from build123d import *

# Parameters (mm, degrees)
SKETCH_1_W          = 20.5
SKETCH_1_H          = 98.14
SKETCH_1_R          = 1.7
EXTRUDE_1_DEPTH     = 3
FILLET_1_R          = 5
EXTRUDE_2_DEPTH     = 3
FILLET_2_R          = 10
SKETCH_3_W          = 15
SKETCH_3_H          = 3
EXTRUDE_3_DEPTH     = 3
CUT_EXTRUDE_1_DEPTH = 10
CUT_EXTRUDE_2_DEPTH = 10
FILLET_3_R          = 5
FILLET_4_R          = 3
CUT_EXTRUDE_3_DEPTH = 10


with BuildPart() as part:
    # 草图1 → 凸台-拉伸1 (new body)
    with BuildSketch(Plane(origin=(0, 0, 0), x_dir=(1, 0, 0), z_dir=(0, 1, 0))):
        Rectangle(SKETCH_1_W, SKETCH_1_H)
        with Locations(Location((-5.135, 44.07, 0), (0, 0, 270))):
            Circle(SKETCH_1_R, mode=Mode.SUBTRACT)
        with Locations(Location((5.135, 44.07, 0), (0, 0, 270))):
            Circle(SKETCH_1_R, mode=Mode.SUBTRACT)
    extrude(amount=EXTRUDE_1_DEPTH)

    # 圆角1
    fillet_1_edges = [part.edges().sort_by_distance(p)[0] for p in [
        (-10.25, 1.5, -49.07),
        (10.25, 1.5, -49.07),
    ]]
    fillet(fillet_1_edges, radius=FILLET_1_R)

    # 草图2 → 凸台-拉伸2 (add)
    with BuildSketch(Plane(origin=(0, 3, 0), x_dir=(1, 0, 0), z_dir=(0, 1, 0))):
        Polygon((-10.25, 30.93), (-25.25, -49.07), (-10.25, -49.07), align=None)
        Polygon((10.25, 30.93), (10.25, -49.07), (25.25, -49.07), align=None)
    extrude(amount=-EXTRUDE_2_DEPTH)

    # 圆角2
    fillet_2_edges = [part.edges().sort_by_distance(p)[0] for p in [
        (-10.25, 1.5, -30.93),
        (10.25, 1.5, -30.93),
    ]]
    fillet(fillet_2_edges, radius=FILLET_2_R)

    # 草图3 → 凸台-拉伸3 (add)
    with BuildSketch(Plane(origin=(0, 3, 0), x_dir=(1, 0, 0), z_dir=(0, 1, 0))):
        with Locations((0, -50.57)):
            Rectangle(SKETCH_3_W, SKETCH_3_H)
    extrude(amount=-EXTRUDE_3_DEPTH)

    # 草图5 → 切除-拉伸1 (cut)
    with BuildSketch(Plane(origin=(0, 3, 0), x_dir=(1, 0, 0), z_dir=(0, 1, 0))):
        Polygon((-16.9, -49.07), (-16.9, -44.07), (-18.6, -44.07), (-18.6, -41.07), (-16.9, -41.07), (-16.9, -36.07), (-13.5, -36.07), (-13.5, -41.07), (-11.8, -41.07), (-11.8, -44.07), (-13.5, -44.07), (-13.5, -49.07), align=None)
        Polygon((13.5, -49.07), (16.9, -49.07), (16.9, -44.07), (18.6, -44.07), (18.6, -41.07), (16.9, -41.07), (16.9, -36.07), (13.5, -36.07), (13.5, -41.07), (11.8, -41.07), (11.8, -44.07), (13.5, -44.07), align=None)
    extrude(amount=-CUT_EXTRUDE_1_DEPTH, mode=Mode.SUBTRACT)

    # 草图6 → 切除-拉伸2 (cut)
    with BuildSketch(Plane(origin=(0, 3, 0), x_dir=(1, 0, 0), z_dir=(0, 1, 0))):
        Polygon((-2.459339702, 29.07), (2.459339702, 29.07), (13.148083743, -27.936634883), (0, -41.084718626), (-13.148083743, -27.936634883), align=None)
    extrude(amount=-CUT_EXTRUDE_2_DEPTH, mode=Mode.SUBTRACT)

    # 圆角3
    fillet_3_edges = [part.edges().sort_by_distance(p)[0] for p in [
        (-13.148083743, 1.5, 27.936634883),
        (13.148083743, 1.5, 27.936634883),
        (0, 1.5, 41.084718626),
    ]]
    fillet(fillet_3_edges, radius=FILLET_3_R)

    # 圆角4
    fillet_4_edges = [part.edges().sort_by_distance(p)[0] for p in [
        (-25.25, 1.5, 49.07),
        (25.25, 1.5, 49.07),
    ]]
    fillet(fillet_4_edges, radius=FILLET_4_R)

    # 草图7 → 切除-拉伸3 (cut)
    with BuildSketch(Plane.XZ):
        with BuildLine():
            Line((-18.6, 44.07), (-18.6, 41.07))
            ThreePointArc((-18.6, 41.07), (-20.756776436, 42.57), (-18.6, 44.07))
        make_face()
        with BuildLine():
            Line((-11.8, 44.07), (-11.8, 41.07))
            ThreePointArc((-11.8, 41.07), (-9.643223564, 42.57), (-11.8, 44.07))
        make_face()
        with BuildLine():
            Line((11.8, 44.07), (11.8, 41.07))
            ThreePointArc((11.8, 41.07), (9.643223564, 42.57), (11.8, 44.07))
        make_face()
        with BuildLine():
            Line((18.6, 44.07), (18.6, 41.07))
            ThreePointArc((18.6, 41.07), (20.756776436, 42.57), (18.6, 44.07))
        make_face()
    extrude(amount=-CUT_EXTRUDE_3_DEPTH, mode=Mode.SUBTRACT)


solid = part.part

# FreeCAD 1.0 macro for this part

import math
import FreeCAD as App
import Part
import Sketcher
from FreeCAD import Vector
Q = App.Units.Quantity


def edges_at(feature, points):
    """Names of the edges that pass closest to the given points."""
    edges = feature.Shape.Edges
    near = lambda p: min(range(len(edges)), key=lambda i: edges[i].distToShape(Part.Vertex(*p))[0])
    return sorted({f"Edge{near(p) + 1}" for p in points})


def add_polygon(sketch, points):
    """Adds a closed chain of lines whose ends are joined by coincident constraints."""
    first, n = sketch.GeometryCount, len(points)
    for a, b in zip(points, points[1:] + points[:1]):
        sketch.addGeometry(Part.LineSegment(App.Vector(*a, 0), App.Vector(*b, 0)), False)
    for i in range(n):
        sketch.addConstraint(Sketcher.Constraint("Coincident", first + i, 2, first + (i + 1) % n, 1))

doc = App.newDocument("Part")
body = doc.addObject("PartDesign::Body", "Body")

# Sketch on XZ plane
sketch1 = doc.addObject("Sketcher::SketchObject", "Sketch")
body.addObject(sketch1)
sketch1.AttachmentSupport = (doc.XZ_Plane, [""])
sketch1.MapMode = "FlatFace"
add_polygon(sketch1, [(-10.2, -49.1), (-10.2, 49.1), (10.2, 49.1), (10.2, -49.1)])  # lines 0-3
sketch1.addGeometry(Part.Circle(Vector(-5.1, -44.1, 0), Vector(0, 0, 1), 1.7), False)  # 4
sketch1.addGeometry(Part.Circle(Vector(5.1, -44.1, 0), Vector(0, 0, 1), 1.7), False)  # 5
sketch1.addConstraint(Sketcher.Constraint("Vertical", 0))
sketch1.addConstraint(Sketcher.Constraint("Horizontal", 1))
sketch1.addConstraint(Sketcher.Constraint("Vertical", 2))
sketch1.addConstraint(Sketcher.Constraint("Horizontal", 3))
sketch1.addConstraint(Sketcher.Constraint("Equal", 4, 5))
sketch1.addConstraint(Sketcher.Constraint("Symmetric", 0, 2, 2, 2, -1, 1))
sketch1.addConstraint(Sketcher.Constraint("Symmetric", 4, 3, 5, 3, -2))
sketch1.addConstraint(Sketcher.Constraint("Diameter", 4, Q("3.4 mm")))
sketch1.addConstraint(Sketcher.Constraint("DistanceX", 1, 1, 1, 2, Q("20.5 mm")))
sketch1.addConstraint(Sketcher.Constraint("DistanceY", 2, 2, 5, 3, Q("5 mm")))
sketch1.addConstraint(Sketcher.Constraint("DistanceY", 0, 1, 0, 2, Q("98.14 mm")))
sketch1.addConstraint(Sketcher.Constraint("DistanceX", 4, 3, 5, 3, Q("10.27 mm")))
pad1 = doc.addObject("PartDesign::Pad", "Pad")
body.addObject(pad1)
pad1.Profile = sketch1
pad1.Length = 3
pad1.Reversed = True
doc.recompute()

fillet = doc.addObject("PartDesign::Fillet", "Fillet")
body.addObject(fillet)
fillet.Base = (pad1, edges_at(pad1, [(-10.25, 1.5, -49.07), (10.25, 1.5, -49.07)]))
fillet.Radius = 5

# Sketch on XZ plane
sketch2 = doc.addObject("Sketcher::SketchObject", "Sketch001")
body.addObject(sketch2)
sketch2.AttachmentSupport = (doc.XZ_Plane, [""])
sketch2.MapMode = "FlatFace"
sketch2.AttachmentOffset = App.Placement(Vector(0, 0, -3), App.Rotation())
add_polygon(sketch2, [(-10, -31), (-25, 49), (-10, 49)])  # lines 0-2
add_polygon(sketch2, [(10, -31), (10, 49), (25, 49)])  # lines 3-5
sketch2.addConstraint(Sketcher.Constraint("Horizontal", 1))
sketch2.addConstraint(Sketcher.Constraint("Vertical", 2))
sketch2.addConstraint(Sketcher.Constraint("Vertical", 3))
sketch2.addConstraint(Sketcher.Constraint("Horizontal", 4))
sketch2.addConstraint(Sketcher.Constraint("Symmetric", 1, 2, 3, 2, -2))
sketch2.addConstraint(Sketcher.Constraint("Horizontal", 2, 2, 5, 2))
sketch2.addConstraint(Sketcher.Constraint("Equal", 1, 4))
sketch2.addConstraint(Sketcher.Constraint("DistanceX", 1, 1, 1, 2, Q("15 mm")))
sketch2.addConstraint(Sketcher.Constraint("DistanceY", 2, 2, 2, 1, Q("80 mm")))
sketch2.addConstraint(Sketcher.Constraint("DistanceX", 1, 2, 3, 2, Q("20.5 mm")))
sketch2.addConstraint(Sketcher.Constraint("DistanceY", -1, 1, 0, 2, Q("49.07 mm")))
pad2 = doc.addObject("PartDesign::Pad", "Pad001")
body.addObject(pad2)
pad2.Profile = sketch2
pad2.Length = 3
doc.recompute()

fillet2 = doc.addObject("PartDesign::Fillet", "Fillet001")
body.addObject(fillet2)
fillet2.Base = (pad2, edges_at(pad2, [(-10.25, 1.5, -30.93), (10.25, 1.5, -30.93)]))
fillet2.Radius = 10

# Sketch on XZ plane
sketch3 = doc.addObject("Sketcher::SketchObject", "Sketch002")
body.addObject(sketch3)
sketch3.AttachmentSupport = (doc.XZ_Plane, [""])
sketch3.MapMode = "FlatFace"
sketch3.AttachmentOffset = App.Placement(Vector(0, 0, -3), App.Rotation())
add_polygon(sketch3, [(-7.5, 49.1), (-7.5, 52.1), (7.5, 52.1), (7.5, 49.1)])  # lines 0-3
sketch3.addConstraint(Sketcher.Constraint("Vertical", 0))
sketch3.addConstraint(Sketcher.Constraint("Horizontal", 1))
sketch3.addConstraint(Sketcher.Constraint("Vertical", 2))
sketch3.addConstraint(Sketcher.Constraint("Horizontal", 3))
sketch3.addConstraint(Sketcher.Constraint("DistanceX", 1, 1, 1, 2, Q("15 mm")))
sketch3.addConstraint(Sketcher.Constraint("DistanceY", 0, 1, 0, 2, Q("3 mm")))
sketch3.addConstraint(Sketcher.Constraint("DistanceX", 0, 2, -1, 1, Q("7.5 mm")))
sketch3.addConstraint(Sketcher.Constraint("DistanceY", -1, 1, 0, 2, Q("52.07 mm")))
pad3 = doc.addObject("PartDesign::Pad", "Pad002")
body.addObject(pad3)
pad3.Profile = sketch3
pad3.Length = 3

# Sketch on XZ plane
sketch4 = doc.addObject("Sketcher::SketchObject", "Sketch003")
body.addObject(sketch4)
sketch4.AttachmentSupport = (doc.XZ_Plane, [""])
sketch4.MapMode = "FlatFace"
sketch4.AttachmentOffset = App.Placement(Vector(0, 0, -3), App.Rotation())
add_polygon(sketch4, [(-16.9, 44.1), (-16.9, 49.1), (-13.5, 49.1), (-13.5, 44.1), (-11.8, 44.1), (-11.8, 41.1), (-13.5, 41.1), (-13.5, 36.1), (-16.9, 36.1), (-16.9, 41.1), (-18.6, 41.1), (-18.6, 44.1)])  # lines 0-11
add_polygon(sketch4, [(13.5, 49.1), (16.9, 49.1), (16.9, 44.1), (18.6, 44.1), (18.6, 41.1), (16.9, 41.1), (16.9, 36.1), (13.5, 36.1), (13.5, 41.1), (11.8, 41.1), (11.8, 44.1), (13.5, 44.1)])  # lines 12-23
sketch4.addConstraint(Sketcher.Constraint("Vertical", 0))
sketch4.addConstraint(Sketcher.Constraint("Horizontal", 1))
sketch4.addConstraint(Sketcher.Constraint("Vertical", 2))
sketch4.addConstraint(Sketcher.Constraint("Horizontal", 3))
sketch4.addConstraint(Sketcher.Constraint("Vertical", 4))
sketch4.addConstraint(Sketcher.Constraint("Horizontal", 5))
sketch4.addConstraint(Sketcher.Constraint("Vertical", 6))
sketch4.addConstraint(Sketcher.Constraint("Horizontal", 7))
sketch4.addConstraint(Sketcher.Constraint("Vertical", 8))
sketch4.addConstraint(Sketcher.Constraint("Horizontal", 9))
sketch4.addConstraint(Sketcher.Constraint("Vertical", 10))
sketch4.addConstraint(Sketcher.Constraint("Horizontal", 11))
sketch4.addConstraint(Sketcher.Constraint("Horizontal", 12))
sketch4.addConstraint(Sketcher.Constraint("Vertical", 13))
sketch4.addConstraint(Sketcher.Constraint("Horizontal", 14))
sketch4.addConstraint(Sketcher.Constraint("Vertical", 15))
sketch4.addConstraint(Sketcher.Constraint("Horizontal", 16))
sketch4.addConstraint(Sketcher.Constraint("Vertical", 17))
sketch4.addConstraint(Sketcher.Constraint("Horizontal", 18))
sketch4.addConstraint(Sketcher.Constraint("Vertical", 19))
sketch4.addConstraint(Sketcher.Constraint("Horizontal", 20))
sketch4.addConstraint(Sketcher.Constraint("Vertical", 21))
sketch4.addConstraint(Sketcher.Constraint("Horizontal", 22))
sketch4.addConstraint(Sketcher.Constraint("Vertical", 23))
sketch4.addConstraint(Sketcher.Constraint("Symmetric", 0, 2, 12, 2, -2))
sketch4.addConstraint(Sketcher.Constraint("Symmetric", 10, 2, 14, 2, -2))
sketch4.addConstraint(Sketcher.Constraint("Symmetric", 8, 2, 16, 2, -2))
sketch4.addConstraint(Sketcher.Constraint("Symmetric", 6, 2, 18, 2, -2))
sketch4.addConstraint(Sketcher.Constraint("Symmetric", 4, 2, 20, 2, -2))
sketch4.addConstraint(Sketcher.Constraint("Symmetric", 2, 2, 22, 2, -2))
sketch4.addConstraint(Sketcher.Constraint("Horizontal", 5, 2, 8, 2))
sketch4.addConstraint(Sketcher.Constraint("Horizontal", 3, 2, 10, 2))
sketch4.addConstraint(Sketcher.Constraint("Vertical", 2, 2, 5, 2))
sketch4.addConstraint(Sketcher.Constraint("Vertical", 0, 2, 7, 2))
sketch4.addConstraint(Sketcher.Constraint("Equal", 5, 9))
sketch4.addConstraint(Sketcher.Constraint("Equal", 2, 6))
sketch4.addConstraint(Sketcher.Constraint("DistanceY", 0, 1, 0, 2, Q("5 mm")))
sketch4.addConstraint(Sketcher.Constraint("DistanceY", 4, 2, 4, 1, Q("3 mm")))
sketch4.addConstraint(Sketcher.Constraint("DistanceX", 1, 1, 1, 2, Q("3.4 mm")))
sketch4.addConstraint(Sketcher.Constraint("DistanceX", 3, 1, 3, 2, Q("1.7 mm")))
sketch4.addConstraint(Sketcher.Constraint("DistanceX", 0, 2, -1, 1, Q("16.9 mm")))
sketch4.addConstraint(Sketcher.Constraint("DistanceY", -1, 1, 0, 2, Q("49.07 mm")))
pocket1 = doc.addObject("PartDesign::Pocket", "Pocket")
body.addObject(pocket1)
pocket1.Profile = sketch4
pocket1.Length = 10
pocket1.Reversed = True

# Sketch on XZ plane
sketch5 = doc.addObject("Sketcher::SketchObject", "Sketch004")
body.addObject(sketch5)
sketch5.AttachmentSupport = (doc.XZ_Plane, [""])
sketch5.MapMode = "FlatFace"
sketch5.AttachmentOffset = App.Placement(Vector(0, 0, -3), App.Rotation())
add_polygon(sketch5, [(2.5, -29.1), (-2.5, -29.1), (-13.1, 27.9), (0, 41.1), (13.1, 27.9)])  # lines 0-4
sketch5.addConstraint(Sketcher.Constraint("Horizontal", 0))
sketch5.addConstraint(Sketcher.Constraint("Symmetric", 1, 2, 3, 2, -2))
sketch5.addConstraint(Sketcher.Constraint("PointOnObject", 2, 2, -2))
sketch5.addConstraint(Sketcher.Constraint("Perpendicular", 2, 3))
sketch5.addConstraint(Sketcher.Constraint("Equal", 1, 4))
sketch5.addConstraint(Sketcher.Constraint("DistanceY", 0, 2, -1, 1, Q("29.07 mm")))
sketch5.addConstraint(Sketcher.Constraint("Distance", 2, Q("18.594198 mm")))
sketch5.addConstraint(Sketcher.Constraint("DistanceX", 0, 2, 0, 1, Q("4.918679 mm")))
sketch5.addConstraint(Sketcher.Constraint("Distance", 1, Q("58.000049 mm")))
pocket2 = doc.addObject("PartDesign::Pocket", "Pocket001")
body.addObject(pocket2)
pocket2.Profile = sketch5
pocket2.Length = 10
pocket2.Reversed = True
doc.recompute()

fillet3 = doc.addObject("PartDesign::Fillet", "Fillet002")
body.addObject(fillet3)
fillet3.Base = (pocket2, edges_at(pocket2, [(-13.148, 1.5, 27.937), (13.148, 1.5, 27.937), (0, 1.5, 41.085)]))
fillet3.Radius = 5
doc.recompute()

fillet4 = doc.addObject("PartDesign::Fillet", "Fillet003")
body.addObject(fillet4)
fillet4.Base = (fillet3, edges_at(fillet3, [(-25.25, 1.5, 49.07), (25.25, 1.5, 49.07)]))
fillet4.Radius = 3

# Sketch on XZ plane
sketch6 = doc.addObject("Sketcher::SketchObject", "Sketch005")
body.addObject(sketch6)
sketch6.AttachmentSupport = (doc.XZ_Plane, [""])
sketch6.MapMode = "FlatFace"
sketch6.addGeometry(Part.LineSegment(Vector(-18.6, 41.1, 0), Vector(-18.6, 44.1, 0)), False)
sketch6.addGeometry(Part.ArcOfCircle(Part.Circle(Vector(-19.2, 42.6, 0), Vector(0, 0, 1), 1.6), math.radians(70), math.radians(290)), False)
sketch6.addGeometry(Part.LineSegment(Vector(-11.8, 44.1, 0), Vector(-11.8, 41.1, 0)), False)
sketch6.addGeometry(Part.ArcOfCircle(Part.Circle(Vector(-11.2, 42.6, 0), Vector(0, 0, 1), 1.6), math.radians(-110), math.radians(110)), False)
sketch6.addGeometry(Part.LineSegment(Vector(11.8, 41.1, 0), Vector(11.8, 44.1, 0)), False)
sketch6.addGeometry(Part.ArcOfCircle(Part.Circle(Vector(11.2, 42.6, 0), Vector(0, 0, 1), 1.6), math.radians(70), math.radians(290)), False)
sketch6.addGeometry(Part.LineSegment(Vector(18.6, 44.1, 0), Vector(18.6, 41.1, 0)), False)
sketch6.addGeometry(Part.ArcOfCircle(Part.Circle(Vector(19.2, 42.6, 0), Vector(0, 0, 1), 1.6), math.radians(-110), math.radians(110)), False)
sketch6.addConstraint(Sketcher.Constraint("Coincident", 0, 1, 1, 2))
sketch6.addConstraint(Sketcher.Constraint("Coincident", 1, 1, 0, 2))
sketch6.addConstraint(Sketcher.Constraint("Coincident", 2, 1, 3, 2))
sketch6.addConstraint(Sketcher.Constraint("Coincident", 3, 1, 2, 2))
sketch6.addConstraint(Sketcher.Constraint("Coincident", 4, 1, 5, 2))
sketch6.addConstraint(Sketcher.Constraint("Coincident", 5, 1, 4, 2))
sketch6.addConstraint(Sketcher.Constraint("Coincident", 6, 1, 7, 2))
sketch6.addConstraint(Sketcher.Constraint("Coincident", 7, 1, 6, 2))
sketch6.addConstraint(Sketcher.Constraint("Vertical", 0))
sketch6.addConstraint(Sketcher.Constraint("Vertical", 2))
sketch6.addConstraint(Sketcher.Constraint("Vertical", 4))
sketch6.addConstraint(Sketcher.Constraint("Vertical", 6))
sketch6.addConstraint(Sketcher.Constraint("Equal", 1, 3))
sketch6.addConstraint(Sketcher.Constraint("Equal", 3, 5))
sketch6.addConstraint(Sketcher.Constraint("Equal", 5, 7))
sketch6.addConstraint(Sketcher.Constraint("Symmetric", 3, 3, 5, 3, -2))
sketch6.addConstraint(Sketcher.Constraint("Symmetric", 1, 3, 7, 3, -2))
sketch6.addConstraint(Sketcher.Constraint("Horizontal", 1, 3, 3, 3))
sketch6.addConstraint(Sketcher.Constraint("Horizontal", 1, 1, 2, 1))
sketch6.addConstraint(Sketcher.Constraint("Horizontal", 3, 1, 4, 1))
sketch6.addConstraint(Sketcher.Constraint("Horizontal", 5, 1, 6, 1))
sketch6.addConstraint(Sketcher.Constraint("Radius", 1, Q("1.6 mm")))
sketch6.addConstraint(Sketcher.Constraint("DistanceY", 0, 1, 0, 2, Q("3 mm")))
sketch6.addConstraint(Sketcher.Constraint("DistanceX", 0, 1, -1, 1, Q("18.6 mm")))
sketch6.addConstraint(Sketcher.Constraint("DistanceX", 2, 1, -1, 1, Q("11.8 mm")))
sketch6.addConstraint(Sketcher.Constraint("DistanceY", -1, 1, 1, 3, Q("42.57 mm")))
pocket3 = doc.addObject("PartDesign::Pocket", "Pocket002")
body.addObject(pocket3)
pocket3.Profile = sketch6
pocket3.Length = 10

doc.recompute()
